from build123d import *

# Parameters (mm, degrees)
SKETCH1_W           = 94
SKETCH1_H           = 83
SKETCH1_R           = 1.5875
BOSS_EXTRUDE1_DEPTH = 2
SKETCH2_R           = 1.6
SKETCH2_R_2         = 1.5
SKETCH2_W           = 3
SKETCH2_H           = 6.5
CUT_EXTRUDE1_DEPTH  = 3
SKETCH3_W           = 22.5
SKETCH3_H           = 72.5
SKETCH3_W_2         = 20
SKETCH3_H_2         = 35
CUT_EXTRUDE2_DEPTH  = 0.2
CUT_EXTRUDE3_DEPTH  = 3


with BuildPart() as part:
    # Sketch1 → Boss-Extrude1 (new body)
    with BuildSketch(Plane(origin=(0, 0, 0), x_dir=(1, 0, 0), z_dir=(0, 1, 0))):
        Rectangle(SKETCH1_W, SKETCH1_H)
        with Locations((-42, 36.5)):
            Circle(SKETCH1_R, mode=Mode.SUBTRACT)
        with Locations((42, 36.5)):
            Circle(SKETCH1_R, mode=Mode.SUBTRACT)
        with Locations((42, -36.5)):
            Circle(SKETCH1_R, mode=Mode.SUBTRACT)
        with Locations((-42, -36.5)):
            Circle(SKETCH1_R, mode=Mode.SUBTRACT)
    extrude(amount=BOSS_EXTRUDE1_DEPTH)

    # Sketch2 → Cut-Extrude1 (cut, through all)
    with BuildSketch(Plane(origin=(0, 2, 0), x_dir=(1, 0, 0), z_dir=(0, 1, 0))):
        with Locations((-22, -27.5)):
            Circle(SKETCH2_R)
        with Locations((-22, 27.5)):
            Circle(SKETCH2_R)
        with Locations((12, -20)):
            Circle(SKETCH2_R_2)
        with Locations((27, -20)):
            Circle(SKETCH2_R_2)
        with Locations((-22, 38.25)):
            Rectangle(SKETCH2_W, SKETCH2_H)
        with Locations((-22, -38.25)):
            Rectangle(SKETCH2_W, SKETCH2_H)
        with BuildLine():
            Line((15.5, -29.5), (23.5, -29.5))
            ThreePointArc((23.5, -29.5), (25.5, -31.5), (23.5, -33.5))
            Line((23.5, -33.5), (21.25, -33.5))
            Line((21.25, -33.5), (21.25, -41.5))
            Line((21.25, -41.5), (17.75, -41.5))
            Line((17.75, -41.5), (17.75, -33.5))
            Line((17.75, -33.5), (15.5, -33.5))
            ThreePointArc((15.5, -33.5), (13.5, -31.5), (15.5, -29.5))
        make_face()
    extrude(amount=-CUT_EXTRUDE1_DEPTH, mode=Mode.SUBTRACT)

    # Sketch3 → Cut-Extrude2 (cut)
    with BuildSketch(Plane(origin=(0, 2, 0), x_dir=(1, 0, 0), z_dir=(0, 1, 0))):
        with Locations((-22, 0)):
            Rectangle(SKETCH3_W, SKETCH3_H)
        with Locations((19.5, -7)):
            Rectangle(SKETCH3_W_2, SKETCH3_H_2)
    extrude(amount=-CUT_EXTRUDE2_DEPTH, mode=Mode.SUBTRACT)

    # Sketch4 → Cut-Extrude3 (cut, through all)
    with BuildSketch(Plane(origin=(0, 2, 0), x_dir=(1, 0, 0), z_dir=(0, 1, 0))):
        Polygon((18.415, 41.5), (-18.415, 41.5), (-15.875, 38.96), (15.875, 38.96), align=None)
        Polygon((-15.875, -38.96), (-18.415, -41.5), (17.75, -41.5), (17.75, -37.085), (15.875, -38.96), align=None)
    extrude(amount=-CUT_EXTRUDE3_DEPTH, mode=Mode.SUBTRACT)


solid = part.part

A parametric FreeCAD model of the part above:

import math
import FreeCAD as App
import Part
import Sketcher

doc = App.newDocument("Part")
body = doc.addObject("PartDesign::Body", "Body")

sketch1 = body.newObject("Sketcher::SketchObject", "Sketch")
sketch1.AttachmentSupport = (doc.getObject("XZ_Plane"), [""])
sketch1.MapMode = "FlatFace"
sketch1.addGeometry([
    Part.LineSegment(App.Vector(-47, -41.5, 0), App.Vector(-47, 41.5, 0)),
    Part.LineSegment(App.Vector(-47, 41.5, 0), App.Vector(47, 41.5, 0)),
    Part.LineSegment(App.Vector(47, 41.5, 0), App.Vector(47, -41.5, 0)),
    Part.LineSegment(App.Vector(47, -41.5, 0), App.Vector(-47, -41.5, 0)),
    Part.Circle(App.Vector(-42, 36.5, 0), App.Vector(0, 0, 1), 1.6),
    Part.Circle(App.Vector(42, 36.5, 0), App.Vector(0, 0, 1), 1.6),
    Part.Circle(App.Vector(-42, -36.5, 0), App.Vector(0, 0, 1), 1.6),
    Part.Circle(App.Vector(42, -36.5, 0), App.Vector(0, 0, 1), 1.6),
], False)
sketch1.addConstraint([
    Sketcher.Constraint("Coincident", 0, 2, 1, 1),
    Sketcher.Constraint("Coincident", 1, 2, 2, 1),
    Sketcher.Constraint("Coincident", 2, 2, 3, 1),
    Sketcher.Constraint("Coincident", 3, 2, 0, 1),
    Sketcher.Constraint("Vertical", 0),
    Sketcher.Constraint("Horizontal", 1),
    Sketcher.Constraint("Vertical", 2),
    Sketcher.Constraint("Horizontal", 3),
    Sketcher.Constraint("Equal", 4, 5),
    Sketcher.Constraint("Equal", 5, 6),
    Sketcher.Constraint("Equal", 6, 7),
    Sketcher.Constraint("Symmetric", 5, 3, 6, 3, -1, 1),
    Sketcher.Constraint("Symmetric", 4, 3, 7, 3, -1, 1),
    Sketcher.Constraint("Symmetric", 0, 2, 2, 2, -1, 1),
    Sketcher.Constraint("Symmetric", 4, 3, 5, 3, -2),
    Sketcher.Constraint("DistanceX", 1, 1, 1, 2, 94.0),
    Sketcher.Constraint("DistanceY", 0, 1, 0, 2, 83.0),
    Sketcher.Constraint("Diameter", 4, 3.175),
    Sketcher.Constraint("DistanceX", 4, 3, -1, 1, 42.0),
    Sketcher.Constraint("DistanceY", 6, 3, 4, 3, 73.0),
])
pad1 = body.newObject("PartDesign::Pad", "Pad")
pad1.Profile = sketch1
pad1.Length = 2
pad1.Reversed = True

sketch2 = body.newObject("Sketcher::SketchObject", "Sketch001")
sketch2.AttachmentSupport = (doc.getObject("XZ_Plane"), [""])
sketch2.MapMode = "FlatFace"
sketch2.AttachmentOffset = App.Placement(App.Vector(0, 0, -2), App.Rotation())
sketch2.addGeometry([
    Part.Circle(App.Vector(-22, 27.5, 0), App.Vector(0, 0, 1), 1.6),
    Part.Circle(App.Vector(-22, -27.5, 0), App.Vector(0, 0, 1), 1.6),
    Part.Circle(App.Vector(12, 20, 0), App.Vector(0, 0, 1), 1.5),
    Part.Circle(App.Vector(27, 20, 0), App.Vector(0, 0, 1), 1.5),
    Part.LineSegment(App.Vector(-23.5, -41.5, 0), App.Vector(-23.5, -35, 0)),
    Part.LineSegment(App.Vector(-23.5, -35, 0), App.Vector(-20.5, -35, 0)),
    Part.LineSegment(App.Vector(-20.5, -35, 0), App.Vector(-20.5, -41.5, 0)),
    Part.LineSegment(App.Vector(-20.5, -41.5, 0), App.Vector(-23.5, -41.5, 0)),
    Part.LineSegment(App.Vector(-23.5, 35, 0), App.Vector(-23.5, 41.5, 0)),
    Part.LineSegment(App.Vector(-23.5, 41.5, 0), App.Vector(-20.5, 41.5, 0)),
    Part.LineSegment(App.Vector(-20.5, 41.5, 0), App.Vector(-20.5, 35, 0)),
    Part.LineSegment(App.Vector(-20.5, 35, 0), App.Vector(-23.5, 35, 0)),
    Part.LineSegment(App.Vector(23.5, 29.5, 0), App.Vector(15.5, 29.5, 0)),
    Part.ArcOfCircle(Part.Circle(App.Vector(15.5, 31.5, 0), App.Vector(0, 0, 1), 2), math.radians(90), math.radians(270)),
    Part.LineSegment(App.Vector(15.5, 33.5, 0), App.Vector(17.8, 33.5, 0)),
    Part.LineSegment(App.Vector(17.8, 33.5, 0), App.Vector(17.8, 41.5, 0)),
    Part.LineSegment(App.Vector(17.8, 41.5, 0), App.Vector(21.2, 41.5, 0)),
    Part.LineSegment(App.Vector(21.2, 41.5, 0), App.Vector(21.2, 33.5, 0)),
    Part.LineSegment(App.Vector(21.2, 33.5, 0), App.Vector(23.5, 33.5, 0)),
    Part.ArcOfCircle(Part.Circle(App.Vector(23.5, 31.5, 0), App.Vector(0, 0, 1), 2), math.radians(-90), math.radians(90)),
], False)
sketch2.addConstraint([
    Sketcher.Constraint("Coincident", 4, 2, 5, 1),
    Sketcher.Constraint("Coincident", 5, 2, 6, 1),
    Sketcher.Constraint("Coincident", 6, 2, 7, 1),
    Sketcher.Constraint("Coincident", 7, 2, 4, 1),
    Sketcher.Constraint("Coincident", 8, 2, 9, 1),
    Sketcher.Constraint("Coincident", 9, 2, 10, 1),
    Sketcher.Constraint("Coincident", 10, 2, 11, 1),
    Sketcher.Constraint("Coincident", 11, 2, 8, 1),
    Sketcher.Constraint("Tangent", 12, 2, 13, 2),
    Sketcher.Constraint("Tangent", 13, 1, 14, 1),
    Sketcher.Constraint("Coincident", 14, 2, 15, 1),
    Sketcher.Constraint("Coincident", 15, 2, 16, 1),
    Sketcher.Constraint("Coincident", 16, 2, 17, 1),
    Sketcher.Constraint("Coincident", 17, 2, 18, 1),
    Sketcher.Constraint("Tangent", 18, 2, 19, 2),
    Sketcher.Constraint("Tangent", 19, 1, 12, 1),
    Sketcher.Constraint("Vertical", 4),
    Sketcher.Constraint("Horizontal", 5),
    Sketcher.Constraint("Vertical", 6),
    Sketcher.Constraint("Horizontal", 7),
    Sketcher.Constraint("Vertical", 8),
    Sketcher.Constraint("Horizontal", 9),
    Sketcher.Constraint("Vertical", 10),
    Sketcher.Constraint("Horizontal", 11),
    Sketcher.Constraint("Horizontal", 12),
    Sketcher.Constraint("Horizontal", 14),
    Sketcher.Constraint("Vertical", 15),
    Sketcher.Constraint("Horizontal", 16),
    Sketcher.Constraint("Vertical", 17),
    Sketcher.Constraint("Horizontal", 18),
    Sketcher.Constraint("Equal", 0, 1),
    Sketcher.Constraint("Equal", 2, 3),
    Sketcher.Constraint("Equal", 13, 19),
    Sketcher.Constraint("Symmetric", 0, 3, 1, 3, -1),
    Sketcher.Constraint("Symmetric", 7, 2, 8, 2, -1),
    Sketcher.Constraint("Symmetric", 5, 2, 10, 2, -1),
    Sketcher.Constraint("Horizontal", 2, 3, 3, 3),
    Sketcher.Constraint("Horizontal", 9, 2, 15, 2),
    Sketcher.Constraint("Equal", 14, 18),
    Sketcher.Constraint("Equal", 12, 15),
    Sketcher.Constraint("Diameter", 2, 3.0),
    Sketcher.Constraint("Radius", 13, 2.0),
    Sketcher.Constraint("Diameter", 0, 3.2),
    Sketcher.Constraint("DistanceX", 5, 1, 5, 2, 3.0),
    Sketcher.Constraint("DistanceX", 12, 2, 12, 1, 8.0),
    Sketcher.Constraint("DistanceX", 16, 1, 16, 2, 3.5),
    Sketcher.Constraint("DistanceY", 4, 1, 4, 2, 6.5),
    Sketcher.Constraint("DistanceX", 0, 3, -1, 1, 22.0),
    Sketcher.Constraint("DistanceX", -1, 1, 2, 3, 12.0),
    Sketcher.Constraint("DistanceY", -1, 1, 2, 3, 20.0),
    Sketcher.Constraint("DistanceX", -1, 1, 3, 3, 27.0),
    Sketcher.Constraint("DistanceY", 4, 2, -1, 1, 35.0),
    Sketcher.Constraint("DistanceY", 1, 3, 0, 3, 55.0),
    Sketcher.Constraint("DistanceX", 4, 2, 13, 3, 39.0),
    Sketcher.Constraint("DistanceX", -1, 1, 13, 3, 15.5),
])
pocket1 = body.newObject("PartDesign::Pocket", "Pocket")
pocket1.Profile = sketch2
pocket1.Type = "ThroughAll"
pocket1.Reversed = True

sketch3 = body.newObject("Sketcher::SketchObject", "Sketch002")
sketch3.AttachmentSupport = (doc.getObject("XZ_Plane"), [""])
sketch3.MapMode = "FlatFace"
sketch3.AttachmentOffset = App.Placement(App.Vector(0, 0, -2), App.Rotation())
sketch3.addGeometry([
    Part.LineSegment(App.Vector(-33, -36, 0), App.Vector(-33, 36, 0)),
    Part.LineSegment(App.Vector(-33, 36, 0), App.Vector(-11, 36, 0)),
    Part.LineSegment(App.Vector(-11, 36, 0), App.Vector(-11, -36, 0)),
    Part.LineSegment(App.Vector(-11, -36, 0), App.Vector(-33, -36, 0)),
    Part.LineSegment(App.Vector(10, -10, 0), App.Vector(10, 24, 0)),
    Part.LineSegment(App.Vector(10, 24, 0), App.Vector(30, 24, 0)),
    Part.LineSegment(App.Vector(30, 24, 0), App.Vector(30, -10, 0)),
    Part.LineSegment(App.Vector(30, -10, 0), App.Vector(10, -10, 0)),
], False)
sketch3.addConstraint([
    Sketcher.Constraint("Coincident", 0, 2, 1, 1),
    Sketcher.Constraint("Coincident", 1, 2, 2, 1),
    Sketcher.Constraint("Coincident", 2, 2, 3, 1),
    Sketcher.Constraint("Coincident", 3, 2, 0, 1),
    Sketcher.Constraint("Coincident", 4, 2, 5, 1),
    Sketcher.Constraint("Coincident", 5, 2, 6, 1),
    Sketcher.Constraint("Coincident", 6, 2, 7, 1),
    Sketcher.Constraint("Coincident", 7, 2, 4, 1),
    Sketcher.Constraint("Vertical", 0),
    Sketcher.Constraint("Horizontal", 1),
    Sketcher.Constraint("Vertical", 2),
    Sketcher.Constraint("Horizontal", 3),
    Sketcher.Constraint("Vertical", 4),
    Sketcher.Constraint("Horizontal", 5),
    Sketcher.Constraint("Vertical", 6),
    Sketcher.Constraint("Horizontal", 7),
    Sketcher.Constraint("DistanceX", 5, 1, 5, 2, 20.0),
    Sketcher.Constraint("DistanceY", 4, 1, 4, 2, 35.0),
    Sketcher.Constraint("DistanceX", 1, 1, 1, 2, 22.5),
    Sketcher.Constraint("DistanceY", 0, 1, 0, 2, 72.5),
    Sketcher.Constraint("DistanceX", -1, 1, 4, 2, 9.5),
    Sketcher.Constraint("DistanceY", -1, 1, 4, 2, 24.5),
    Sketcher.Constraint("DistanceX", 0, 2, -1, 1, 33.25),
    Sketcher.Constraint("DistanceY", -1, 1, 0, 2, 36.25),
])
pocket2 = body.newObject("PartDesign::Pocket", "Pocket001")
pocket2.Profile = sketch3
pocket2.Length = 0.2
pocket2.Reversed = True

sketch4 = body.newObject("Sketcher::SketchObject", "Sketch003")
sketch4.AttachmentSupport = (doc.getObject("XZ_Plane"), [""])
sketch4.MapMode = "FlatFace"
sketch4.AttachmentOffset = App.Placement(App.Vector(0, 0, -2), App.Rotation())
sketch4.addGeometry([
    Part.LineSegment(App.Vector(18.4, -41.5, 0), App.Vector(-18.4, -41.5, 0)),
    Part.LineSegment(App.Vector(-18.4, -41.5, 0), App.Vector(-15.9, -39, 0)),
    Part.LineSegment(App.Vector(-15.9, -39, 0), App.Vector(15.9, -39, 0)),
    Part.LineSegment(App.Vector(15.9, -39, 0), App.Vector(18.4, -41.5, 0)),
    Part.LineSegment(App.Vector(-15.9, 39, 0), App.Vector(-18.4, 41.5, 0)),
    Part.LineSegment(App.Vector(-18.4, 41.5, 0), App.Vector(17.8, 41.5, 0)),
    Part.LineSegment(App.Vector(17.8, 41.5, 0), App.Vector(17.8, 37.1, 0)),
    Part.LineSegment(App.Vector(17.8, 37.1, 0), App.Vector(15.9, 39, 0)),
    Part.LineSegment(App.Vector(15.9, 39, 0), App.Vector(-15.9, 39, 0)),
], False)
sketch4.addConstraint([
    Sketcher.Constraint("Coincident", 0, 2, 1, 1),
    Sketcher.Constraint("Coincident", 1, 2, 2, 1),
    Sketcher.Constraint("Coincident", 2, 2, 3, 1),
    Sketcher.Constraint("Coincident", 3, 2, 0, 1),
    Sketcher.Constraint("Coincident", 4, 2, 5, 1),
    Sketcher.Constraint("Coincident", 5, 2, 6, 1),
    Sketcher.Constraint("Coincident", 6, 2, 7, 1),
    Sketcher.Constraint("Coincident", 7, 2, 8, 1),
    Sketcher.Constraint("Coincident", 8, 2, 4, 1),
    Sketcher.Constraint("Horizontal", 0),
    Sketcher.Constraint("Horizontal", 2),
    Sketcher.Constraint("Horizontal", 5),
    Sketcher.Constraint("Vertical", 6),
    Sketcher.Constraint("Horizontal", 8),
    Sketcher.Constraint("Symmetric", 3, 2, 4, 2, -1, 1),
    Sketcher.Constraint("Symmetric", 1, 2, 7, 2, -1, 1),
    Sketcher.Constraint("Perpendicular", 1, 3),
    Sketcher.Constraint("Parallel", 3, 4),
    Sketcher.Constraint("Parallel", 4, 7),
    Sketcher.Constraint("Vertical", 0, 2, 4, 2),
    Sketcher.Constraint("Vertical", 2, 2, 7, 2),
    Sketcher.Constraint("DistanceY", 0, 2, 4, 2, 83.0),
    Sketcher.Constraint("DistanceX", 0, 2, 0, 1, 36.83),
    Sketcher.Constraint("DistanceX", 2, 1, 2, 2, 31.75),
    Sketcher.Constraint("DistanceX", 5, 1, 5, 2, 36.165),
])
pocket3 = body.newObject("PartDesign::Pocket", "Pocket002")
pocket3.Profile = sketch4
pocket3.Type = "ThroughAll"
pocket3.Reversed = True

doc.recompute()
